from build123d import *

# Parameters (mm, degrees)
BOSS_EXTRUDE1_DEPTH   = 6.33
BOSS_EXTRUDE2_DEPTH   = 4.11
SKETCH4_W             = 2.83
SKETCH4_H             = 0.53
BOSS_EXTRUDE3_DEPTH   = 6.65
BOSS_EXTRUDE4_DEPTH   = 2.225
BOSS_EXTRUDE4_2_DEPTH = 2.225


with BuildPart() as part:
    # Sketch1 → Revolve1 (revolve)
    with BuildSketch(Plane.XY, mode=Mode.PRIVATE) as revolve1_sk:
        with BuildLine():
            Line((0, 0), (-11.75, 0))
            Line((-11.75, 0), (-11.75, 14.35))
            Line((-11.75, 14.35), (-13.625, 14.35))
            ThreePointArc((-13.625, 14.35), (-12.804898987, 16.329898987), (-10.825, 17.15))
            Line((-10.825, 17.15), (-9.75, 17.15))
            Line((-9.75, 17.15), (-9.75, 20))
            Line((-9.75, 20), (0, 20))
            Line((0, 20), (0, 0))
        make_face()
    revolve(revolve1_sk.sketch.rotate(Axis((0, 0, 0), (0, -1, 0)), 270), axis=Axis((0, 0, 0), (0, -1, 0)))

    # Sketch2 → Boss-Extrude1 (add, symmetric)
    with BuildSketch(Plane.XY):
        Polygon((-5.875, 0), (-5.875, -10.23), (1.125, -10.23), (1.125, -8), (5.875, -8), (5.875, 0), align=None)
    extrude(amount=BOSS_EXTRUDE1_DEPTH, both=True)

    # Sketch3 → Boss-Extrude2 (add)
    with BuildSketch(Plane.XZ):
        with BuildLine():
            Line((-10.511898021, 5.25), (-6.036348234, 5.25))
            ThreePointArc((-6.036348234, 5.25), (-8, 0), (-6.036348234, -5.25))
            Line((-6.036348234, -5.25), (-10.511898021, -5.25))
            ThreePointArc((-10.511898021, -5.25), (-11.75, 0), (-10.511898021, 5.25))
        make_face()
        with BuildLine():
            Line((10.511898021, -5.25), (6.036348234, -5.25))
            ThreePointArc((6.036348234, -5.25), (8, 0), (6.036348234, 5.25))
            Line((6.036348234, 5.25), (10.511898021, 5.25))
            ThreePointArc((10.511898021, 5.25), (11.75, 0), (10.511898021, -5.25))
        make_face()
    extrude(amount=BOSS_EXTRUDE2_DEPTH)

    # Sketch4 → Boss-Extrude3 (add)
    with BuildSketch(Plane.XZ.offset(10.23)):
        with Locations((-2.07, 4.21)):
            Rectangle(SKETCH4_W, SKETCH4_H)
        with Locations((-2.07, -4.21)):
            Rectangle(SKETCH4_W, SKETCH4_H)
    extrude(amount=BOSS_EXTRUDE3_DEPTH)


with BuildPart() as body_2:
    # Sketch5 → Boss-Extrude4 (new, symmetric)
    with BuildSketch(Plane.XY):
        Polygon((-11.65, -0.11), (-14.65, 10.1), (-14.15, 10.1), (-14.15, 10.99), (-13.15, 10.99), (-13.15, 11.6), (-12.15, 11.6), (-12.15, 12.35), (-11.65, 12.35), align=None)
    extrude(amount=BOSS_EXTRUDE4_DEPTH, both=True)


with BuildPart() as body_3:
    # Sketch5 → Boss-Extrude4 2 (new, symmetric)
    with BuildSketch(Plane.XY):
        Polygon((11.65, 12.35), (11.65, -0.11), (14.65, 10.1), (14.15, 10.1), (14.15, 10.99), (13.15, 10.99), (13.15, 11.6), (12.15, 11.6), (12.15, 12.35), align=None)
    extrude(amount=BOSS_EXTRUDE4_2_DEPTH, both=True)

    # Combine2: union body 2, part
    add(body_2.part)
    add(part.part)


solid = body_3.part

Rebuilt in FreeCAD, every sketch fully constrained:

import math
import FreeCAD as App
import Part
import Sketcher
from FreeCAD import Vector
Q = App.Units.Quantity

doc = App.newDocument("Part")
body = doc.addObject("PartDesign::Body", "Body")

# Sketch on XY plane
sketch1 = body.newObject("Sketcher::SketchObject", "Sketch")
sketch1.AttachmentSupport = (doc.getObject("XY_Plane"), [""])
sketch1.MapMode = "FlatFace"
sketch1.addGeometry([
    Part.LineSegment(Vector(-11.8, 0, 0), Vector(0, 0, 0)),  # 0
    Part.LineSegment(Vector(0, 0, 0), Vector(0, 20, 0)),  # 1
    Part.LineSegment(Vector(0, 20, 0), Vector(-9.8, 20, 0)),  # 2
    Part.LineSegment(Vector(-9.8, 20, 0), Vector(-9.8, 17.1, 0)),  # 3
    Part.LineSegment(Vector(-9.8, 17.1, 0), Vector(-10.8, 17.1, 0)),  # 4
    Part.ArcOfCircle(Part.Circle(Vector(-10.8, 14.3, 0), Vector(0, 0, 1), 2.8), math.radians(90), math.radians(180)),  # 5
    Part.LineSegment(Vector(-13.6, 14.3, 0), Vector(-11.8, 14.3, 0)),  # 6
    Part.LineSegment(Vector(-11.8, 14.3, 0), Vector(-11.8, 0, 0)),  # 7
], False)
sketch1.addConstraint([
    Sketcher.Constraint("Coincident", 0, 2, 1, 1),
    Sketcher.Constraint("Coincident", 1, 2, 2, 1),
    Sketcher.Constraint("Coincident", 2, 2, 3, 1),
    Sketcher.Constraint("Coincident", 3, 2, 4, 1),
    Sketcher.Constraint("Tangent", 4, 2, 5, 1),
    Sketcher.Constraint("Coincident", 5, 2, 6, 1),
    Sketcher.Constraint("Coincident", 6, 2, 7, 1),
    Sketcher.Constraint("Coincident", 7, 2, 0, 1),
    Sketcher.Constraint("Horizontal", 0),
    Sketcher.Constraint("Vertical", 1),
    Sketcher.Constraint("Horizontal", 2),
    Sketcher.Constraint("Vertical", 3),
    Sketcher.Constraint("Horizontal", 4),
    Sketcher.Constraint("Horizontal", 6),
    Sketcher.Constraint("Vertical", 7),
    Sketcher.Constraint("Coincident", 0, 2, -1, 1),
    Sketcher.Constraint("Radius", 5, Q("2.8 mm")),
    Sketcher.Constraint("DistanceY", 1, 1, 1, 2, Q("20 mm")),
    Sketcher.Constraint("DistanceX", 6, 2, 3, 2, Q("2 mm")),
    Sketcher.Constraint("DistanceX", 0, 1, 0, 2, Q("11.75 mm")),
    Sketcher.Constraint("DistanceY", 3, 2, 3, 1, Q("2.85 mm")),
    Sketcher.Constraint("DistanceY", 7, 2, 7, 1, Q("14.35 mm")),
    Sketcher.Constraint("DistanceX", 4, 2, 4, 1, Q("1.075 mm")),
])
revolution = body.newObject("PartDesign::Revolution", "Revolution")
revolution.Profile = sketch1
revolution.ReferenceAxis = (sketch1, ["V_Axis"])
revolution.Angle = 360

# Sketch on XY plane
sketch2 = body.newObject("Sketcher::SketchObject", "Sketch001")
sketch2.AttachmentSupport = (doc.getObject("XY_Plane"), [""])
sketch2.MapMode = "FlatFace"
sketch2.addGeometry([
    Part.LineSegment(Vector(-5.9, 0, 0), Vector(-5.9, -10.2, 0)),  # 0
    Part.LineSegment(Vector(-5.9, -10.2, 0), Vector(1.1, -10.2, 0)),  # 1
    Part.LineSegment(Vector(1.1, -10.2, 0), Vector(1.1, -8, 0)),  # 2
    Part.LineSegment(Vector(1.1, -8, 0), Vector(5.9, -8, 0)),  # 3
    Part.LineSegment(Vector(5.9, -8, 0), Vector(5.9, 0, 0)),  # 4
    Part.LineSegment(Vector(5.9, 0, 0), Vector(-5.9, 0, 0)),  # 5
], False)
sketch2.addConstraint([
    Sketcher.Constraint("Coincident", 0, 2, 1, 1),
    Sketcher.Constraint("Coincident", 1, 2, 2, 1),
    Sketcher.Constraint("Coincident", 2, 2, 3, 1),
    Sketcher.Constraint("Coincident", 3, 2, 4, 1),
    Sketcher.Constraint("Coincident", 4, 2, 5, 1),
    Sketcher.Constraint("Coincident", 5, 2, 0, 1),
    Sketcher.Constraint("Vertical", 0),
    Sketcher.Constraint("Horizontal", 1),
    Sketcher.Constraint("Vertical", 2),
    Sketcher.Constraint("Horizontal", 3),
    Sketcher.Constraint("Vertical", 4),
    Sketcher.Constraint("Horizontal", 5),
    Sketcher.Constraint("Symmetric", 4, 2, 5, 2, -1, 1),
    Sketcher.Constraint("DistanceX", 1, 1, 1, 2, Q("7 mm")),
    Sketcher.Constraint("DistanceY", 4, 1, 4, 2, Q("8 mm")),
    Sketcher.Constraint("DistanceX", 3, 1, 3, 2, Q("4.75 mm")),
    Sketcher.Constraint("DistanceY", 0, 2, 0, 1, Q("10.23 mm")),
])
pad1 = body.newObject("PartDesign::Pad", "Pad")
pad1.Profile = sketch2
pad1.Length = 12.66
pad1.Midplane = True

# Sketch on XZ plane
sketch3 = body.newObject("Sketcher::SketchObject", "Sketch002")
sketch3.AttachmentSupport = (doc.getObject("XZ_Plane"), [""])
sketch3.MapMode = "FlatFace"
sketch3.addGeometry([
    Part.LineSegment(Vector(-6, 5.2, 0), Vector(-10.5, 5.2, 0)),  # 0
    Part.ArcOfCircle(Part.Circle(Vector(0, 0, 0), Vector(0, 0, 1), 11.8), math.radians(153), math.radians(207)),  # 1
    Part.LineSegment(Vector(-10.5, -5.2, 0), Vector(-6, -5.2, 0)),  # 2
    Part.ArcOfCircle(Part.Circle(Vector(0, 0, 0), Vector(0, 0, 1), 8), math.radians(139), math.radians(221)),  # 3
    Part.LineSegment(Vector(6, -5.2, 0), Vector(10.5, -5.2, 0)),  # 4
    Part.ArcOfCircle(Part.Circle(Vector(0, 0, 0), Vector(0, 0, 1), 11.8), math.radians(-27), math.radians(27)),  # 5
    Part.LineSegment(Vector(10.5, 5.2, 0), Vector(6, 5.2, 0)),  # 6
    Part.ArcOfCircle(Part.Circle(Vector(0, 0, 0), Vector(0, 0, 1), 8), math.radians(-41), math.radians(41)),  # 7
], False)
sketch3.addConstraint([
    Sketcher.Constraint("Coincident", 0, 2, 1, 1),
    Sketcher.Constraint("Coincident", 1, 2, 2, 1),
    Sketcher.Constraint("Coincident", 2, 2, 3, 2),
    Sketcher.Constraint("Coincident", 3, 1, 0, 1),
    Sketcher.Constraint("Coincident", 4, 2, 5, 1),
    Sketcher.Constraint("Coincident", 5, 2, 6, 1),
    Sketcher.Constraint("Coincident", 6, 2, 7, 2),
    Sketcher.Constraint("Coincident", 7, 1, 4, 1),
    Sketcher.Constraint("Horizontal", 0),
    Sketcher.Constraint("Horizontal", 2),
    Sketcher.Constraint("Horizontal", 4),
    Sketcher.Constraint("Horizontal", 6),
    Sketcher.Constraint("Coincident", 1, 3, -1, 1),
    Sketcher.Constraint("Coincident", 3, 3, -1, 1),
    Sketcher.Constraint("Coincident", 5, 3, -1, 1),
    Sketcher.Constraint("Coincident", 7, 3, -1, 1),
    Sketcher.Constraint("Equal", 1, 5),
    Sketcher.Constraint("Equal", 3, 7),
    Sketcher.Constraint("Horizontal", 2, 2, 4, 2),
    Sketcher.Constraint("Horizontal", 3, 1, 5, 2),
    Sketcher.Constraint("Vertical", 0, 2, 1, 2),
    Sketcher.Constraint("Radius", 3, Q("8 mm")),
    Sketcher.Constraint("Radius", 1, Q("11.75 mm")),
    Sketcher.Constraint("DistanceY", 1, 2, 0, 2, Q("10.5 mm")),
])
pad2 = body.newObject("PartDesign::Pad", "Pad001")
pad2.Profile = sketch3
pad2.Length = 4.11

# Sketch on XZ plane
sketch4 = body.newObject("Sketcher::SketchObject", "Sketch003")
sketch4.AttachmentSupport = (doc.getObject("XZ_Plane"), [""])
sketch4.MapMode = "FlatFace"
sketch4.AttachmentOffset = App.Placement(Vector(0, 0, 10.23), App.Rotation())
sketch4.addGeometry([
    Part.LineSegment(Vector(-3.5, 4.5, 0), Vector(-3.5, 3.9, 0)),  # 0
    Part.LineSegment(Vector(-3.5, 3.9, 0), Vector(-0.7, 3.9, 0)),  # 1
    Part.LineSegment(Vector(-0.7, 3.9, 0), Vector(-0.7, 4.5, 0)),  # 2
    Part.LineSegment(Vector(-0.7, 4.5, 0), Vector(-3.5, 4.5, 0)),  # 3
    Part.LineSegment(Vector(-3.5, -3.9, 0), Vector(-3.5, -4.5, 0)),  # 4
    Part.LineSegment(Vector(-3.5, -4.5, 0), Vector(-0.7, -4.5, 0)),  # 5
    Part.LineSegment(Vector(-0.7, -4.5, 0), Vector(-0.7, -3.9, 0)),  # 6
    Part.LineSegment(Vector(-0.7, -3.9, 0), Vector(-3.5, -3.9, 0)),  # 7
], False)
sketch4.addConstraint([
    Sketcher.Constraint("Coincident", 0, 2, 1, 1),
    Sketcher.Constraint("Coincident", 1, 2, 2, 1),
    Sketcher.Constraint("Coincident", 2, 2, 3, 1),
    Sketcher.Constraint("Coincident", 3, 2, 0, 1),
    Sketcher.Constraint("Coincident", 4, 2, 5, 1),
    Sketcher.Constraint("Coincident", 5, 2, 6, 1),
    Sketcher.Constraint("Coincident", 6, 2, 7, 1),
    Sketcher.Constraint("Coincident", 7, 2, 4, 1),
    Sketcher.Constraint("Vertical", 0),
    Sketcher.Constraint("Horizontal", 1),
    Sketcher.Constraint("Vertical", 2),
    Sketcher.Constraint("Horizontal", 3),
    Sketcher.Constraint("Vertical", 4),
    Sketcher.Constraint("Horizontal", 5),
    Sketcher.Constraint("Vertical", 6),
    Sketcher.Constraint("Horizontal", 7),
    Sketcher.Constraint("Symmetric", 3, 2, 4, 2, -1),
    Sketcher.Constraint("Symmetric", 1, 2, 6, 2, -1),
    Sketcher.Constraint("DistanceX", 1, 1, 1, 2, Q("2.83 mm")),
    Sketcher.Constraint("DistanceY", 0, 2, 0, 1, Q("0.53 mm")),
    Sketcher.Constraint("DistanceY", 4, 2, 0, 2, Q("8.42 mm")),
    Sketcher.Constraint("DistanceX", 0, 2, -1, 1, Q("3.485 mm")),
])
pad3 = body.newObject("PartDesign::Pad", "Pad002")
pad3.Profile = sketch4
pad3.Length = 6.65
body2 = doc.addObject("PartDesign::Body", "Body001")

# Sketch on XY plane
sketch5 = body2.newObject("Sketcher::SketchObject", "Sketch004")
sketch5.AttachmentSupport = (doc.getObject("XY_Plane001"), [""])
sketch5.MapMode = "FlatFace"
sketch5.addGeometry([
    Part.LineSegment(Vector(-14.7, 10.1, 0), Vector(-11.7, -0.1, 0)),  # 0
    Part.LineSegment(Vector(-11.7, -0.1, 0), Vector(-11.7, 12.3, 0)),  # 1
    Part.LineSegment(Vector(-11.7, 12.3, 0), Vector(-12.2, 12.3, 0)),  # 2
    Part.LineSegment(Vector(-12.2, 12.3, 0), Vector(-12.2, 11.6, 0)),  # 3
    Part.LineSegment(Vector(-12.2, 11.6, 0), Vector(-13.2, 11.6, 0)),  # 4
    Part.LineSegment(Vector(-13.2, 11.6, 0), Vector(-13.2, 11, 0)),  # 5
    Part.LineSegment(Vector(-13.2, 11, 0), Vector(-14.2, 11, 0)),  # 6
    Part.LineSegment(Vector(-14.2, 11, 0), Vector(-14.2, 10.1, 0)),  # 7
    Part.LineSegment(Vector(-14.2, 10.1, 0), Vector(-14.7, 10.1, 0)),  # 8
], False)
sketch5.addConstraint([
    Sketcher.Constraint("Coincident", 0, 2, 1, 1),
    Sketcher.Constraint("Coincident", 1, 2, 2, 1),
    Sketcher.Constraint("Coincident", 2, 2, 3, 1),
    Sketcher.Constraint("Coincident", 3, 2, 4, 1),
    Sketcher.Constraint("Coincident", 4, 2, 5, 1),
    Sketcher.Constraint("Coincident", 5, 2, 6, 1),
    Sketcher.Constraint("Coincident", 6, 2, 7, 1),
    Sketcher.Constraint("Coincident", 7, 2, 8, 1),
    Sketcher.Constraint("Coincident", 8, 2, 0, 1),
    Sketcher.Constraint("Vertical", 1),
    Sketcher.Constraint("Horizontal", 2),
    Sketcher.Constraint("Vertical", 3),
    Sketcher.Constraint("Horizontal", 4),
    Sketcher.Constraint("Vertical", 5),
    Sketcher.Constraint("Horizontal", 6),
    Sketcher.Constraint("Vertical", 7),
    Sketcher.Constraint("Horizontal", 8),
    Sketcher.Constraint("Equal", 4, 6),
    Sketcher.Constraint("Equal", 2, 8),
    Sketcher.Constraint("DistanceX", 4, 2, 4, 1, Q("1 mm")),
    Sketcher.Constraint("DistanceX", 2, 2, 2, 1, Q("0.5 mm")),
    Sketcher.Constraint("DistanceY", 1, 1, 1, 2, Q("12.46 mm")),
    Sketcher.Constraint("DistanceY", 3, 2, 3, 1, Q("0.75 mm")),
    Sketcher.Constraint("DistanceY", 5, 2, 5, 1, Q("0.61 mm")),
    Sketcher.Constraint("DistanceY", 7, 2, 7, 1, Q("0.89 mm")),
    Sketcher.Constraint("DistanceY", -1, 1, 3, 2, Q("11.6 mm")),
    Sketcher.Constraint("DistanceX", 0, 2, -1, 1, Q("11.65 mm")),
])
pad4 = body2.newObject("PartDesign::Pad", "Pad003")
pad4.Profile = sketch5
pad4.Length = 4.45
pad4.Midplane = True
body3 = doc.addObject("PartDesign::Body", "Body002")
body3.AllowCompound = True

# Sketch on XY plane
sketch6 = body3.newObject("Sketcher::SketchObject", "Sketch005")
sketch6.AttachmentSupport = (doc.getObject("XY_Plane002"), [""])
sketch6.MapMode = "FlatFace"
sketch6.addGeometry([
    Part.LineSegment(Vector(11.7, 12.3, 0), Vector(11.7, -0.1, 0)),  # 0
    Part.LineSegment(Vector(11.7, -0.1, 0), Vector(14.7, 10.1, 0)),  # 1
    Part.LineSegment(Vector(14.7, 10.1, 0), Vector(14.2, 10.1, 0)),  # 2
    Part.LineSegment(Vector(14.2, 10.1, 0), Vector(14.2, 11, 0)),  # 3
    Part.LineSegment(Vector(14.2, 11, 0), Vector(13.2, 11, 0)),  # 4
    Part.LineSegment(Vector(13.2, 11, 0), Vector(13.2, 11.6, 0)),  # 5
    Part.LineSegment(Vector(13.2, 11.6, 0), Vector(12.2, 11.6, 0)),  # 6
    Part.LineSegment(Vector(12.2, 11.6, 0), Vector(12.2, 12.3, 0)),  # 7
    Part.LineSegment(Vector(12.2, 12.3, 0), Vector(11.7, 12.3, 0)),  # 8
], False)
sketch6.addConstraint([
    Sketcher.Constraint("Coincident", 0, 2, 1, 1),
    Sketcher.Constraint("Coincident", 1, 2, 2, 1),
    Sketcher.Constraint("Coincident", 2, 2, 3, 1),
    Sketcher.Constraint("Coincident", 3, 2, 4, 1),
    Sketcher.Constraint("Coincident", 4, 2, 5, 1),
    Sketcher.Constraint("Coincident", 5, 2, 6, 1),
    Sketcher.Constraint("Coincident", 6, 2, 7, 1),
    Sketcher.Constraint("Coincident", 7, 2, 8, 1),
    Sketcher.Constraint("Coincident", 8, 2, 0, 1),
    Sketcher.Constraint("Vertical", 0),
    Sketcher.Constraint("Horizontal", 2),
    Sketcher.Constraint("Vertical", 3),
    Sketcher.Constraint("Horizontal", 4),
    Sketcher.Constraint("Vertical", 5),
    Sketcher.Constraint("Horizontal", 6),
    Sketcher.Constraint("Vertical", 7),
    Sketcher.Constraint("Horizontal", 8),
    Sketcher.Constraint("Equal", 4, 6),
    Sketcher.Constraint("Equal", 2, 8),
    Sketcher.Constraint("DistanceX", 4, 2, 4, 1, Q("1 mm")),
    Sketcher.Constraint("DistanceX", 2, 2, 2, 1, Q("0.5 mm")),
    Sketcher.Constraint("DistanceY", 0, 2, 0, 1, Q("12.46 mm")),
    Sketcher.Constraint("DistanceY", 3, 1, 3, 2, Q("0.89 mm")),
    Sketcher.Constraint("DistanceY", 5, 1, 5, 2, Q("0.61 mm")),
    Sketcher.Constraint("DistanceY", 7, 1, 7, 2, Q("0.75 mm")),
    Sketcher.Constraint("DistanceY", -1, 1, 1, 2, Q("10.1 mm")),
    Sketcher.Constraint("DistanceX", -1, 1, 0, 2, Q("11.65 mm")),
])
pad5 = body3.newObject("PartDesign::Pad", "Pad004")
pad5.Profile = sketch6
pad5.Length = 4.45
pad5.Midplane = True
doc.recompute()

boolean = body3.newObject("PartDesign::Boolean", "Boolean")
boolean.Type = "Fuse"
boolean.addObjects([body2])
doc.recompute()

boolean2 = body3.newObject("PartDesign::Boolean", "Boolean001")
boolean2.Type = "Fuse"
boolean2.addObjects([body])

doc.recompute()
